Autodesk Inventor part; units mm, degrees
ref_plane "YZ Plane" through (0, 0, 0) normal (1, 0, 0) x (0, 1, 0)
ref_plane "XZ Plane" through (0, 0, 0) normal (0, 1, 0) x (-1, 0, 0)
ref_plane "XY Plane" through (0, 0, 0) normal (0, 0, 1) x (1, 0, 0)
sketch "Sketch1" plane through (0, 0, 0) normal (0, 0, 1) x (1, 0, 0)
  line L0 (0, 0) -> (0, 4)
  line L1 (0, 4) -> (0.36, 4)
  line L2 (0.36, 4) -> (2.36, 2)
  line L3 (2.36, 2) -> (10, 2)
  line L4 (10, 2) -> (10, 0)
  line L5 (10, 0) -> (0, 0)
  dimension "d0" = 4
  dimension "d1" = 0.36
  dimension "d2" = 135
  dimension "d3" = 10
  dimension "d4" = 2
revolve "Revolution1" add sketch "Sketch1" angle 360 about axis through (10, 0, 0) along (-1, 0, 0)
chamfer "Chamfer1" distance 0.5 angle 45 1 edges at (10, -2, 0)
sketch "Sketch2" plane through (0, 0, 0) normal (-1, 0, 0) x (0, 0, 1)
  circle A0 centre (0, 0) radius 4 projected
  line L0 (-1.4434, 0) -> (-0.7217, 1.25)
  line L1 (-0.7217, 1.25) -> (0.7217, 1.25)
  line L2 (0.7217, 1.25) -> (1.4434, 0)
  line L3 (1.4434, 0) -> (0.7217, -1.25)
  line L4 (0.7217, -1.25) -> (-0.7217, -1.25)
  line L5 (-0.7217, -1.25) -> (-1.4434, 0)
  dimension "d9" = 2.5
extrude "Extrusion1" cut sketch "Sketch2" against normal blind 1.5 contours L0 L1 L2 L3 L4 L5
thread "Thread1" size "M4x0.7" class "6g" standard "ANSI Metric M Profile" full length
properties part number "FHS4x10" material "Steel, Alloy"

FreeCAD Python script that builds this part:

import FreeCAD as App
import Part
import Sketcher

V = App.Vector
Q = App.Units.Quantity


def edges_at(feature, points):
    """Names of the edges that pass closest to the given points."""
    edges = feature.Shape.Edges
    near = lambda p: min(range(len(edges)), key=lambda i: edges[i].distToShape(Part.Vertex(*p))[0])
    return sorted({f"Edge{near(p) + 1}" for p in points})

doc = App.newDocument("Part")
body = doc.addObject("PartDesign::Body", "Body")

# Sketch on XY plane
sketch1 = doc.addObject("Sketcher::SketchObject", "Sketch")
body.addObject(sketch1)
sketch1.AttachmentSupport = (doc.XY_Plane, [""])
sketch1.MapMode = "FlatFace"
sketch1.addGeometry(Part.LineSegment(V(0, 4, 0), V(0, 0, 0)), False)
sketch1.addGeometry(Part.LineSegment(V(0, 0, 0), V(10, 0, 0)), False)
sketch1.addGeometry(Part.LineSegment(V(10, 0, 0), V(10, 2, 0)), False)
sketch1.addGeometry(Part.LineSegment(V(10, 2, 0), V(2.36, 2, 0)), False)
sketch1.addGeometry(Part.LineSegment(V(2.36, 2, 0), V(0.36, 4, 0)), False)
sketch1.addGeometry(Part.LineSegment(V(0.36, 4, 0), V(0, 4, 0)), False)
sketch1.addConstraint(Sketcher.Constraint("Coincident", 0, 2, 1, 1))
sketch1.addConstraint(Sketcher.Constraint("Coincident", 1, 2, 2, 1))
sketch1.addConstraint(Sketcher.Constraint("Coincident", 2, 2, 3, 1))
sketch1.addConstraint(Sketcher.Constraint("Coincident", 3, 2, 4, 1))
sketch1.addConstraint(Sketcher.Constraint("Coincident", 4, 2, 5, 1))
sketch1.addConstraint(Sketcher.Constraint("Coincident", 5, 2, 0, 1))
sketch1.addConstraint(Sketcher.Constraint("Vertical", 0))
sketch1.addConstraint(Sketcher.Constraint("Horizontal", 1))
sketch1.addConstraint(Sketcher.Constraint("Vertical", 2))
sketch1.addConstraint(Sketcher.Constraint("Horizontal", 3))
sketch1.addConstraint(Sketcher.Constraint("Horizontal", 5))
sketch1.addConstraint(Sketcher.Constraint("Coincident", 0, 2, -1, 1))
sketch1.addConstraint(Sketcher.Constraint("DistanceX", 1, 1, 1, 2, 10.0))
sketch1.addConstraint(Sketcher.Constraint("DistanceY", 0, 2, 0, 1, 4.0))
sketch1.addConstraint(Sketcher.Constraint("DistanceY", 2, 1, 2, 2, 2.0))
sketch1.addConstraint(Sketcher.Constraint("Angle", 4, Q("135 deg")))
sketch1.addConstraint(Sketcher.Constraint("DistanceX", 5, 2, 5, 1, 0.36))
revolution = doc.addObject("PartDesign::Revolution", "Revolution")
body.addObject(revolution)
revolution.Profile = sketch1
revolution.ReferenceAxis = (sketch1, ["H_Axis"])
revolution.Angle = 360
doc.recompute()

chamfer = doc.addObject("PartDesign::Chamfer", "Chamfer")
body.addObject(chamfer)
chamfer.Base = (revolution, edges_at(revolution, [(10, -2, 0)]))
chamfer.Size = 0.5

# Sketch on YZ plane
sketch2 = doc.addObject("Sketcher::SketchObject", "Sketch001")
body.addObject(sketch2)
sketch2.AttachmentSupport = (doc.YZ_Plane, [""])
sketch2.MapMode = "FlatFace"
sketch2.addGeometry(Part.LineSegment(V(1.2, -0.7, 0), V(0, -1.4, 0)), False)
sketch2.addGeometry(Part.LineSegment(V(0, -1.4, 0), V(-1.2, -0.7, 0)), False)
sketch2.addGeometry(Part.LineSegment(V(-1.2, -0.7, 0), V(-1.2, 0.7, 0)), False)
sketch2.addGeometry(Part.LineSegment(V(-1.2, 0.7, 0), V(0, 1.4, 0)), False)
sketch2.addGeometry(Part.LineSegment(V(0, 1.4, 0), V(1.2, 0.7, 0)), False)
sketch2.addGeometry(Part.LineSegment(V(1.2, 0.7, 0), V(1.2, -0.7, 0)), False)
sketch2.addConstraint(Sketcher.Constraint("Coincident", 0, 2, 1, 1))
sketch2.addConstraint(Sketcher.Constraint("Coincident", 1, 2, 2, 1))
sketch2.addConstraint(Sketcher.Constraint("Coincident", 2, 2, 3, 1))
sketch2.addConstraint(Sketcher.Constraint("Coincident", 3, 2, 4, 1))
sketch2.addConstraint(Sketcher.Constraint("Coincident", 4, 2, 5, 1))
sketch2.addConstraint(Sketcher.Constraint("Coincident", 5, 2, 0, 1))
sketch2.addConstraint(Sketcher.Constraint("Vertical", 2))
sketch2.addConstraint(Sketcher.Constraint("Vertical", 5))
sketch2.addConstraint(Sketcher.Constraint("Symmetric", 0, 2, 3, 2, -1, 1))
sketch2.addConstraint(Sketcher.Constraint("Symmetric", 1, 2, 4, 2, -1, 1))
sketch2.addConstraint(Sketcher.Constraint("PointOnObject", 0, 2, -2))
sketch2.addConstraint(Sketcher.Constraint("Parallel", 0, 3))
sketch2.addConstraint(Sketcher.Constraint("Horizontal", 2, 2, 4, 2))
sketch2.addConstraint(Sketcher.Constraint("DistanceX", 2, 2, 4, 2, 2.5))
sketch2.addConstraint(Sketcher.Constraint("Angle", 0, Q("-149.9996 deg")))
sketch2.addConstraint(Sketcher.Constraint("DistanceY", 2, 1, 2, 2, 1.4434))
pocket1 = doc.addObject("PartDesign::Pocket", "Pocket")
body.addObject(pocket1)
pocket1.Profile = sketch2
pocket1.Length = 1.5
pocket1.Reversed = True

doc.recompute()
